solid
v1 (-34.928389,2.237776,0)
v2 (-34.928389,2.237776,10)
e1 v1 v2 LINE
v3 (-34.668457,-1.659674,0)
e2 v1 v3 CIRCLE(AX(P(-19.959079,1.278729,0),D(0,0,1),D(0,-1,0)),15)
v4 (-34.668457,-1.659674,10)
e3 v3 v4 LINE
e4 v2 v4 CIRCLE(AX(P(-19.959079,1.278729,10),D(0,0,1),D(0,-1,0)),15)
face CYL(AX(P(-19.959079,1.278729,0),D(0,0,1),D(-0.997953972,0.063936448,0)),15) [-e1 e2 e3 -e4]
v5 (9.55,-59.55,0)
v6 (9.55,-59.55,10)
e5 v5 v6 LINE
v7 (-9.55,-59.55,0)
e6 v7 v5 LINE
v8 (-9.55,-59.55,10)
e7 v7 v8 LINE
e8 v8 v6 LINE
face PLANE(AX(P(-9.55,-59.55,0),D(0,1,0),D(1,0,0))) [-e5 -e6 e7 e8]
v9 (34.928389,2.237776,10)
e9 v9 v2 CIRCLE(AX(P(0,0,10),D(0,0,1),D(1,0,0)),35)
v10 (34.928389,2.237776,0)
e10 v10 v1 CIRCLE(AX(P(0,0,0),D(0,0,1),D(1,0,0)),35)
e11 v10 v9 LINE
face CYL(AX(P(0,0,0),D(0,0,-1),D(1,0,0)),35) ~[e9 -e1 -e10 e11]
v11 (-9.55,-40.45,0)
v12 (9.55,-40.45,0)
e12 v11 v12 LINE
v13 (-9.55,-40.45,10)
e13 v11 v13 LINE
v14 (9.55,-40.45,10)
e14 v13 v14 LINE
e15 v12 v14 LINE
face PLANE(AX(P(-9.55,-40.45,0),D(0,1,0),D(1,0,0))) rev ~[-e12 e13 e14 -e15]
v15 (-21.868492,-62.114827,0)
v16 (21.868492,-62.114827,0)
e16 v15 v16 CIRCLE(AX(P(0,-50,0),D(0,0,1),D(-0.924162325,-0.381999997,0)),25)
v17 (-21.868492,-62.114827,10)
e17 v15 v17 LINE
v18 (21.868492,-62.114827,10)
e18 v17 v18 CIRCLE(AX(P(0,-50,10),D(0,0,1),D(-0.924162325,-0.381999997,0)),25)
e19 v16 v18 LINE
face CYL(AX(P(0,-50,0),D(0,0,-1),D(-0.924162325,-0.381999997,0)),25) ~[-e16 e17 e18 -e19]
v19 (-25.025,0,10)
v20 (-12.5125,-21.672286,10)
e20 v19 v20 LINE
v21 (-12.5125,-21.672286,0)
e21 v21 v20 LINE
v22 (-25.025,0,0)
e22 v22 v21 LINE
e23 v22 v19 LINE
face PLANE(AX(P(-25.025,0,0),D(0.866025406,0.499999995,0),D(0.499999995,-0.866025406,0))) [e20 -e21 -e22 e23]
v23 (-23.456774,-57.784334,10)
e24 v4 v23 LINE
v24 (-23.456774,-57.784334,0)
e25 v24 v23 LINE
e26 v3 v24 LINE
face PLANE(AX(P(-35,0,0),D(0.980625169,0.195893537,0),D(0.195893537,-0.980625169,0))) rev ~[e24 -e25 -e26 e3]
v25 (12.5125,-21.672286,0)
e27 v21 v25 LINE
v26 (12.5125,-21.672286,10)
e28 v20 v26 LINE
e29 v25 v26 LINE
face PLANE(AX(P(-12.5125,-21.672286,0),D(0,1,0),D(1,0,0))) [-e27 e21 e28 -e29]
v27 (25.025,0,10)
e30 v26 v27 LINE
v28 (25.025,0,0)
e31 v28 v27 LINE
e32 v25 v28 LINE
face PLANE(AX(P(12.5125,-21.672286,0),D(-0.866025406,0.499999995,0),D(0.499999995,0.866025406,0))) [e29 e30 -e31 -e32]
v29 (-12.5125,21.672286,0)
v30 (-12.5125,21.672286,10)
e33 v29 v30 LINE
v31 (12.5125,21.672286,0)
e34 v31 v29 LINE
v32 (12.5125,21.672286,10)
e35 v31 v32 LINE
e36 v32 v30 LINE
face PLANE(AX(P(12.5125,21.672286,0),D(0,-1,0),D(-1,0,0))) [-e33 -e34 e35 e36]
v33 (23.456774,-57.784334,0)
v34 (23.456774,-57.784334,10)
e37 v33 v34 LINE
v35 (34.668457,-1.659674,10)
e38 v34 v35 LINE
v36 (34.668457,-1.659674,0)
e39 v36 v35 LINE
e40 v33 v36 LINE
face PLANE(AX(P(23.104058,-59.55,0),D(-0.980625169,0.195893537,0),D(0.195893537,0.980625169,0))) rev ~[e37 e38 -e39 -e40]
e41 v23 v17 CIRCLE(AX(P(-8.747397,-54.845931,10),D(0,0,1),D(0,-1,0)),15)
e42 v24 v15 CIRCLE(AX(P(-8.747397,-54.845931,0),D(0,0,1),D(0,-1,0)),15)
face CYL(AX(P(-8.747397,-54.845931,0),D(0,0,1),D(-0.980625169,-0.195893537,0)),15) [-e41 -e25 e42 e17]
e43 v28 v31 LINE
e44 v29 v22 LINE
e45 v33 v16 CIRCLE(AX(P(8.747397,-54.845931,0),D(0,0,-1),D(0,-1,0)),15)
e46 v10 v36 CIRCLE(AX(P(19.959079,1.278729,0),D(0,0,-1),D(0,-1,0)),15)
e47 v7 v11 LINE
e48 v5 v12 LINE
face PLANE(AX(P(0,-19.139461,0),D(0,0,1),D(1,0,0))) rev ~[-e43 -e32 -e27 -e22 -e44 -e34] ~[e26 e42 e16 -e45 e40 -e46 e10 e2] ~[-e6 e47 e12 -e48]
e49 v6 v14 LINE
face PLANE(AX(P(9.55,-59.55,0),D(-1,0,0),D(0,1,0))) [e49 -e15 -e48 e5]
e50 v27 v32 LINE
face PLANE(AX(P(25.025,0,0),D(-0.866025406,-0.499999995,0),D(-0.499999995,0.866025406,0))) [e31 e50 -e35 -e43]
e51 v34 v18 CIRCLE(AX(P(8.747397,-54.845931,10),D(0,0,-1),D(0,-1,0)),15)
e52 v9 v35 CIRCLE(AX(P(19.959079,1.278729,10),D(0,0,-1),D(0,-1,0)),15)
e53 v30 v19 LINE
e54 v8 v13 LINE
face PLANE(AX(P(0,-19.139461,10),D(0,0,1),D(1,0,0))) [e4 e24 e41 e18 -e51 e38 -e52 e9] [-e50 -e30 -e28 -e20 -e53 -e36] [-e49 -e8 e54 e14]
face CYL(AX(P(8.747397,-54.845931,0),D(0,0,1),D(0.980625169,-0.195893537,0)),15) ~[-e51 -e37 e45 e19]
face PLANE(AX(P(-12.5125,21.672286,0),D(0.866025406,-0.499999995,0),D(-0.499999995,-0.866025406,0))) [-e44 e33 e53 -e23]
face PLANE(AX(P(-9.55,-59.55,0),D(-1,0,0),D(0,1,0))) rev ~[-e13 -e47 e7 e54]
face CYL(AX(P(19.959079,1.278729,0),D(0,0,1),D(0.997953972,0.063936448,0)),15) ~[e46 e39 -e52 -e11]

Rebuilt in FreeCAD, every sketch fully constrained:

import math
import FreeCAD as App
import Part
import Sketcher

V = App.Vector
Q = App.Units.Quantity


def edges_at(feature, points):
    """Names of the edges that pass closest to the given points."""
    edges = feature.Shape.Edges
    near = lambda p: min(range(len(edges)), key=lambda i: edges[i].distToShape(Part.Vertex(*p))[0])
    return sorted({f"Edge{near(p) + 1}" for p in points})


def add_polygon(sketch, points):
    """Adds a closed chain of lines whose ends are joined by coincident constraints."""
    first, n = sketch.GeometryCount, len(points)
    for a, b in zip(points, points[1:] + points[:1]):
        sketch.addGeometry(Part.LineSegment(App.Vector(*a, 0), App.Vector(*b, 0)), False)
    for i in range(n):
        sketch.addConstraint(Sketcher.Constraint("Coincident", first + i, 2, first + (i + 1) % n, 1))

doc = App.newDocument("Part")
body = doc.addObject("PartDesign::Body", "Body")

# Sketch on XY plane
sketch1 = body.newObject("Sketcher::SketchObject", "Sketch")
sketch1.AttachmentSupport = (doc.getObject("XY_Plane"), [""])
sketch1.MapMode = "FlatFace"
sketch1.addGeometry(Part.ArcOfCircle(Part.Circle(V(0, 0, 0), V(0, 0, 1), 35), math.radians(0), math.radians(180)), False)  # 0
sketch1.addGeometry(Part.LineSegment(V(-35, 0, 0), V(-23, -60, 0)), False)  # 1
sketch1.addGeometry(Part.ArcOfCircle(Part.Circle(V(0, -50, 0), V(0, 0, 1), 25), math.radians(-158), math.radians(-22)), False)  # 2
sketch1.addGeometry(Part.LineSegment(V(23, -60, 0), V(35, 0, 0)), False)  # 3
add_polygon(sketch1, [(10, -60), (-10, -60), (-10, -40), (10, -40)])  # lines 4-7
add_polygon(sketch1, [(-13, -22), (-25, 0), (-13, 22), (13, 22), (25, 0), (13, -22)])  # lines 8-13
sketch1.addConstraint([
    Sketcher.Constraint("Coincident", 0, 2, 1, 1),
    Sketcher.Constraint("Coincident", 1, 2, 2, 1),
    Sketcher.Constraint("Coincident", 2, 2, 3, 1),
    Sketcher.Constraint("Coincident", 3, 2, 0, 1),
    Sketcher.Constraint("Horizontal", 4),
    Sketcher.Constraint("Vertical", 5),
    Sketcher.Constraint("Horizontal", 6),
    Sketcher.Constraint("Vertical", 7),
    Sketcher.Constraint("Horizontal", 10),
    Sketcher.Constraint("Horizontal", 13),
    Sketcher.Constraint("Coincident", 0, 3, -1, 1),
    Sketcher.Constraint("Symmetric", 8, 2, 11, 2, -1, 1),
    Sketcher.Constraint("Symmetric", 9, 2, 12, 2, -1, 1),
    Sketcher.Constraint("Symmetric", 1, 2, 2, 2, -2),
    Sketcher.Constraint("PointOnObject", 0, 2, -1),
    Sketcher.Constraint("PointOnObject", 3, 2, -1),
    Sketcher.Constraint("PointOnObject", 8, 2, -1),
    Sketcher.Constraint("Parallel", 8, 11),
    Sketcher.Constraint("Horizontal", 2, 2, 4, 2),
    Sketcher.Constraint("Vertical", 10, 2, 12, 2),
    Sketcher.Constraint("Equal", 6, 5),
    Sketcher.Constraint("Radius", 0, 35.0),
    Sketcher.Constraint("Radius", 2, 25.0),
    Sketcher.Constraint("Angle", 8, Q("120 deg")),
    Sketcher.Constraint("DistanceX", 4, 2, 4, 1, 19.1),
    Sketcher.Constraint("DistanceY", 2, 3, -1, 1, 50.0),
    Sketcher.Constraint("DistanceX", 10, 1, 10, 2, 25.025),
    Sketcher.Constraint("DistanceY", 1, 2, -1, 1, 59.55),
    Sketcher.Constraint("DistanceX", 4, 2, -1, 1, 9.55),
    Sketcher.Constraint("Distance", 8, 25.025),
])
pad1 = body.newObject("PartDesign::Pad", "Pad")
pad1.Profile = sketch1
pad1.Length = 10
doc.recompute()

fillet = body.newObject("PartDesign::Fillet", "Fillet")
fillet.Base = (pad1, edges_at(pad1, [
    (-35, 0, 5),
    (-23.104, -59.55, 5),
    (23.104, -59.55, 5),
    (35, 0, 5),
]))
fillet.Radius = 15

doc.recompute()
